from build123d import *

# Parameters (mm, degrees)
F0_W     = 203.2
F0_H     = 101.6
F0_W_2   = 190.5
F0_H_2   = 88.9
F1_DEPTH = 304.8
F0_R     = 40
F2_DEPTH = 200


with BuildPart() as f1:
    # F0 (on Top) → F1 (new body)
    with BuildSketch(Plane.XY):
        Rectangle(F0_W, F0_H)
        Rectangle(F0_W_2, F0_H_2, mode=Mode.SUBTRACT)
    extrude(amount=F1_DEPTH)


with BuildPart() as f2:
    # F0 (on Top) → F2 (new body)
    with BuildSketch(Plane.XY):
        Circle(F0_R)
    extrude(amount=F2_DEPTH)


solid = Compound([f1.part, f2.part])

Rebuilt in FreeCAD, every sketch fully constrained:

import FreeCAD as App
import Part
import Sketcher
Q = App.Units.Quantity

doc = App.newDocument("Part")
body = doc.addObject("PartDesign::Body", "Body")

# Sketch on XY plane
sketch1 = body.newObject("Sketcher::SketchObject", "Sketch")
sketch1.AttachmentSupport = (doc.getObject("XY_Plane"), [""])
sketch1.MapMode = "FlatFace"
sketch1.addGeometry([
    Part.LineSegment(App.Vector(-101.6, 50.8, 0), App.Vector(-101.6, -50.8, 0)),  # 0
    Part.LineSegment(App.Vector(-101.6, -50.8, 0), App.Vector(101.6, -50.8, 0)),  # 1
    Part.LineSegment(App.Vector(101.6, -50.8, 0), App.Vector(101.6, 50.8, 0)),  # 2
    Part.LineSegment(App.Vector(101.6, 50.8, 0), App.Vector(-101.6, 50.8, 0)),  # 3
    Part.LineSegment(App.Vector(95.25, -44.45, 0), App.Vector(-95.25, -44.45, 0)),  # 4
    Part.LineSegment(App.Vector(-95.25, -44.45, 0), App.Vector(-95.25, 44.45, 0)),  # 5
    Part.LineSegment(App.Vector(-95.25, 44.45, 0), App.Vector(95.25, 44.45, 0)),  # 6
    Part.LineSegment(App.Vector(95.25, 44.45, 0), App.Vector(95.25, -44.45, 0)),  # 7
], False)
sketch1.addConstraint([
    Sketcher.Constraint("Coincident", 0, 2, 1, 1),
    Sketcher.Constraint("Coincident", 1, 2, 2, 1),
    Sketcher.Constraint("Coincident", 2, 2, 3, 1),
    Sketcher.Constraint("Coincident", 3, 2, 0, 1),
    Sketcher.Constraint("Coincident", 4, 2, 5, 1),
    Sketcher.Constraint("Coincident", 5, 2, 6, 1),
    Sketcher.Constraint("Coincident", 6, 2, 7, 1),
    Sketcher.Constraint("Coincident", 7, 2, 4, 1),
    Sketcher.Constraint("Vertical", 0),
    Sketcher.Constraint("Horizontal", 1),
    Sketcher.Constraint("Vertical", 2),
    Sketcher.Constraint("Horizontal", 3),
    Sketcher.Constraint("Horizontal", 4),
    Sketcher.Constraint("Vertical", 5),
    Sketcher.Constraint("Horizontal", 6),
    Sketcher.Constraint("Vertical", 7),
    Sketcher.Constraint("Symmetric", 0, 2, 2, 2, -1, 1),
    Sketcher.Constraint("Symmetric", 4, 2, 6, 2, -1, 1),
    Sketcher.Constraint("DistanceX", 1, 1, 1, 2, Q("8 in")),
    Sketcher.Constraint("DistanceY", 0, 2, 0, 1, Q("4 in")),
    Sketcher.Constraint("DistanceX", 4, 2, 4, 1, Q("7.5 in")),
    Sketcher.Constraint("DistanceY", 5, 1, 5, 2, Q("3.5 in")),
])
pad1 = body.newObject("PartDesign::Pad", "Pad")
pad1.Profile = sketch1
pad1.Length = Q("12 in")
body2 = doc.addObject("PartDesign::Body", "Body001")

# Sketch on XY plane
sketch2 = body2.newObject("Sketcher::SketchObject", "Sketch001")
sketch2.AttachmentSupport = (doc.getObject("XY_Plane001"), [""])
sketch2.MapMode = "FlatFace"
sketch2.addGeometry(Part.Circle(App.Vector(0, 0, 0), App.Vector(0, 0, 1), 40), False)
sketch2.addConstraint([
    Sketcher.Constraint("Coincident", 0, 3, -1, 1),
    Sketcher.Constraint("Diameter", 0, Q("80 mm")),
])
pad2 = body2.newObject("PartDesign::Pad", "Pad001")
pad2.Profile = sketch2
pad2.Length = 200

doc.recompute()
